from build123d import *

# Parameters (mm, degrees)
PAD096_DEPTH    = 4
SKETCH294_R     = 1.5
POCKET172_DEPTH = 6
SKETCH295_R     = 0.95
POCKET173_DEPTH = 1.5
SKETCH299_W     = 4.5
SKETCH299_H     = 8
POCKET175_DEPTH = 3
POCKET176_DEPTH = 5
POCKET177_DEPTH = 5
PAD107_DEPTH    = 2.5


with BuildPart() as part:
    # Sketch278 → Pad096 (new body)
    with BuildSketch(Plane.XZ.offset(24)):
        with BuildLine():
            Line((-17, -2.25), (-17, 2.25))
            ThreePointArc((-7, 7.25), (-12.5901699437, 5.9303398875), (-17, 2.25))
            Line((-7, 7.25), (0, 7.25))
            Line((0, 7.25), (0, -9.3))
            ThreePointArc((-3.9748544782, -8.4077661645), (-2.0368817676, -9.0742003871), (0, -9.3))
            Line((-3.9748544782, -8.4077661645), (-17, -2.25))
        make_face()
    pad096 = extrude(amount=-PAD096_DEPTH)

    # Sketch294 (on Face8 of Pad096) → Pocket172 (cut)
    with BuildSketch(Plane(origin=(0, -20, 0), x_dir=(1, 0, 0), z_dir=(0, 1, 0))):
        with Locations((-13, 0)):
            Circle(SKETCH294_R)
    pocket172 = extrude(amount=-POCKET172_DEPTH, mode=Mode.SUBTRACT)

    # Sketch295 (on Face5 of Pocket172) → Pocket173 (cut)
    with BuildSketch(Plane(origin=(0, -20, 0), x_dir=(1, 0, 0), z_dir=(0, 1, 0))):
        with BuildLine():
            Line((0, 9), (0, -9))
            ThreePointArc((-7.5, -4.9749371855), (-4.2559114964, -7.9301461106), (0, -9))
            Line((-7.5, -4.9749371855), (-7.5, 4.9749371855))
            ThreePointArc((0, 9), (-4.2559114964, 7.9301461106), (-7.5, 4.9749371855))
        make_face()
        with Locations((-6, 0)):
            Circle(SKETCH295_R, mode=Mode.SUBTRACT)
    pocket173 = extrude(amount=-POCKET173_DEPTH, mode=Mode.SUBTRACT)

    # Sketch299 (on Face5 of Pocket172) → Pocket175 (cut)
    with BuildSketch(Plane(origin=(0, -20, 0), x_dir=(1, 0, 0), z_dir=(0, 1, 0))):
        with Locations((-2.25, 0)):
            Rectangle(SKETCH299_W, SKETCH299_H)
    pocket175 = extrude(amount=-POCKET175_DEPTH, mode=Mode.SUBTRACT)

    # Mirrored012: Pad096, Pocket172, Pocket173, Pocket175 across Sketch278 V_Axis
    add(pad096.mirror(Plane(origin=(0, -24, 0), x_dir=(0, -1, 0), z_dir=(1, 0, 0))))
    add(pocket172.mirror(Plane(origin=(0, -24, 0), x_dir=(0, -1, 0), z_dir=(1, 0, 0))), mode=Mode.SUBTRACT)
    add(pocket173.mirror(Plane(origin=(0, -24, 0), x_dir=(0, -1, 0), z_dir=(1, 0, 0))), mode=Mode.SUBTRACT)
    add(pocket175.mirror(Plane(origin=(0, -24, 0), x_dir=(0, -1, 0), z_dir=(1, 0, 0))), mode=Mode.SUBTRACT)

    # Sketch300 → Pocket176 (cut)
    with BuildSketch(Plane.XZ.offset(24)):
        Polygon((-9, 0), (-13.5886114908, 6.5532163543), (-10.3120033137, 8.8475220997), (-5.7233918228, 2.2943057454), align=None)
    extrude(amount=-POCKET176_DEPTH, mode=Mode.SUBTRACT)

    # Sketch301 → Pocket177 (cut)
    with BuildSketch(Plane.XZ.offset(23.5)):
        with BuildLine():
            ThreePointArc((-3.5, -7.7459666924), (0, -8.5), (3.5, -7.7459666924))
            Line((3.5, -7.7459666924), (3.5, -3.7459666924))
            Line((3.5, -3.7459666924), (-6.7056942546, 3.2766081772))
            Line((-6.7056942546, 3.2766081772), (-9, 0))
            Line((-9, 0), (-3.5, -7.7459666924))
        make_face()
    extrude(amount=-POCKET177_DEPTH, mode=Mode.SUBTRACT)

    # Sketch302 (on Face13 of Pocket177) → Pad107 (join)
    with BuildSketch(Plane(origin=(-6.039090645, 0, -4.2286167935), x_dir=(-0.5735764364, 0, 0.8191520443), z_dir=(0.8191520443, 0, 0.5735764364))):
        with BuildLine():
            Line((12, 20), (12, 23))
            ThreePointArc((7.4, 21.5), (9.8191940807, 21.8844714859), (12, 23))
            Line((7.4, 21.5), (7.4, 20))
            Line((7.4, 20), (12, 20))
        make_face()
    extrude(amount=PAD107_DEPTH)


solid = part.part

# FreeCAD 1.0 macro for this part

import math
import FreeCAD as App
import Part
import Sketcher
from FreeCAD import Vector
Q = App.Units.Quantity

doc = App.newDocument("Part")
body = doc.addObject("PartDesign::Body", "Body")

# Sketch on XZ plane
sketch1 = body.newObject("Sketcher::SketchObject", "Sketch")
sketch1.AttachmentSupport = (doc.getObject("XZ_Plane"), [""])
sketch1.MapMode = "FlatFace"
sketch1.AttachmentOffset = App.Placement(Vector(0, 0, 24), App.Rotation())
sketch1.addGeometry(Part.LineSegment(Vector(-17, 2.2, 0), Vector(-17, -2.2, 0)), False)
sketch1.addGeometry(Part.LineSegment(Vector(-17, -2.2, 0), Vector(-4, -8.4, 0)), False)
sketch1.addGeometry(Part.ArcOfCircle(Part.Circle(Vector(0, 0, 0), Vector(0, 0, 1), 9.3), math.radians(-115), math.radians(-90)), False)
sketch1.addGeometry(Part.LineSegment(Vector(0, -9.3, 0), Vector(0, 7.2, 0)), False)
sketch1.addGeometry(Part.LineSegment(Vector(0, 7.2, 0), Vector(-7, 7.2, 0)), False)
sketch1.addGeometry(Part.ArcOfCircle(Part.Circle(Vector(-7, -5.2, 0), Vector(0, 0, 1), 12.5), math.radians(90), math.radians(143)), False)
sketch1.addConstraint(Sketcher.Constraint("Coincident", 0, 2, 1, 1))
sketch1.addConstraint(Sketcher.Constraint("Tangent", 1, 2, 2, 1))
sketch1.addConstraint(Sketcher.Constraint("Coincident", 2, 2, 3, 1))
sketch1.addConstraint(Sketcher.Constraint("Coincident", 3, 2, 4, 1))
sketch1.addConstraint(Sketcher.Constraint("Tangent", 4, 2, 5, 1))
sketch1.addConstraint(Sketcher.Constraint("Coincident", 5, 2, 0, 1))
sketch1.addConstraint(Sketcher.Constraint("Vertical", 0))
sketch1.addConstraint(Sketcher.Constraint("Vertical", 3))
sketch1.addConstraint(Sketcher.Constraint("Horizontal", 4))
sketch1.addConstraint(Sketcher.Constraint("Coincident", 2, 3, -1, 1))
sketch1.addConstraint(Sketcher.Constraint("PointOnObject", 2, 2, -2))
sketch1.addConstraint(Sketcher.Constraint("Radius", 2, 9.3))
sketch1.addConstraint(Sketcher.Constraint("Radius", 5, 12.5))
sketch1.addConstraint(Sketcher.Constraint("DistanceX", 4, 2, 4, 1, 7.0))
sketch1.addConstraint(Sketcher.Constraint("DistanceY", 0, 2, 0, 1, 4.5))
sketch1.addConstraint(Sketcher.Constraint("DistanceX", 0, 2, -1, 1, 17.0))
sketch1.addConstraint(Sketcher.Constraint("DistanceY", 3, 1, 3, 2, 16.55))
pad1 = body.newObject("PartDesign::Pad", "Pad")
pad1.Profile = sketch1
pad1.Length = 4
pad1.Reversed = True

# Sketch on XZ plane
sketch2 = body.newObject("Sketcher::SketchObject", "Sketch001")
sketch2.AttachmentSupport = (doc.getObject("XZ_Plane"), [""])
sketch2.MapMode = "FlatFace"
sketch2.AttachmentOffset = App.Placement(Vector(0, 0, 20), App.Rotation())
sketch2.addGeometry(Part.Circle(Vector(-13, 0, 0), Vector(0, 0, 1), 1.5), False)
sketch2.addConstraint(Sketcher.Constraint("PointOnObject", 0, 3, -1))
sketch2.addConstraint(Sketcher.Constraint("Diameter", 0, 3.0))
sketch2.addConstraint(Sketcher.Constraint("DistanceX", 0, 3, -1, 1, 13.0))
pocket1 = body.newObject("PartDesign::Pocket", "Pocket")
pocket1.Profile = sketch2
pocket1.Length = 6
pocket1.Reversed = True

# Sketch on XZ plane
sketch3 = body.newObject("Sketcher::SketchObject", "Sketch002")
sketch3.AttachmentSupport = (doc.getObject("XZ_Plane"), [""])
sketch3.MapMode = "FlatFace"
sketch3.AttachmentOffset = App.Placement(Vector(0, 0, 20), App.Rotation())
sketch3.addGeometry(Part.LineSegment(Vector(0, 9, 0), Vector(0, -9, 0)), False)
sketch3.addGeometry(Part.ArcOfCircle(Part.Circle(Vector(0, 0, 0), Vector(0, 0, 1), 9), math.radians(-146), math.radians(-90)), False)
sketch3.addGeometry(Part.LineSegment(Vector(-7.5, -5, 0), Vector(-7.5, 5, 0)), False)
sketch3.addGeometry(Part.ArcOfCircle(Part.Circle(Vector(0, 0, 0), Vector(0, 0, 1), 9), math.radians(90), math.radians(146)), False)
sketch3.addGeometry(Part.Circle(Vector(-6, 0, 0), Vector(0, 0, 1), 0.9), False)
sketch3.addConstraint(Sketcher.Constraint("Coincident", 0, 2, 1, 2))
sketch3.addConstraint(Sketcher.Constraint("Coincident", 1, 1, 2, 1))
sketch3.addConstraint(Sketcher.Constraint("Coincident", 2, 2, 3, 2))
sketch3.addConstraint(Sketcher.Constraint("Coincident", 3, 1, 0, 1))
sketch3.addConstraint(Sketcher.Constraint("Vertical", 0))
sketch3.addConstraint(Sketcher.Constraint("Vertical", 2))
sketch3.addConstraint(Sketcher.Constraint("Coincident", 1, 3, -1, 1))
sketch3.addConstraint(Sketcher.Constraint("Coincident", 3, 3, -1, 1))
sketch3.addConstraint(Sketcher.Constraint("Equal", 1, 3))
sketch3.addConstraint(Sketcher.Constraint("PointOnObject", 4, 3, -1))
sketch3.addConstraint(Sketcher.Constraint("PointOnObject", 0, 2, -2))
sketch3.addConstraint(Sketcher.Constraint("Radius", 1, 9.0))
sketch3.addConstraint(Sketcher.Constraint("Diameter", 4, 1.9))
sketch3.addConstraint(Sketcher.Constraint("DistanceX", 4, 3, -1, 1, 6.0))
sketch3.addConstraint(Sketcher.Constraint("DistanceX", 1, 1, -1, 1, 7.5))
pocket2 = body.newObject("PartDesign::Pocket", "Pocket001")
pocket2.Profile = sketch3
pocket2.Length = 1.5
pocket2.Reversed = True

# Sketch on XZ plane
sketch4 = body.newObject("Sketcher::SketchObject", "Sketch003")
sketch4.AttachmentSupport = (doc.getObject("XZ_Plane"), [""])
sketch4.MapMode = "FlatFace"
sketch4.AttachmentOffset = App.Placement(Vector(0, 0, 20), App.Rotation())
sketch4.addGeometry(Part.LineSegment(Vector(-4.5, -4, 0), Vector(-4.5, 4, 0)), False)
sketch4.addGeometry(Part.LineSegment(Vector(-4.5, 4, 0), Vector(0, 4, 0)), False)
sketch4.addGeometry(Part.LineSegment(Vector(0, 4, 0), Vector(0, -4, 0)), False)
sketch4.addGeometry(Part.LineSegment(Vector(0, -4, 0), Vector(-4.5, -4, 0)), False)
sketch4.addConstraint(Sketcher.Constraint("Coincident", 0, 2, 1, 1))
sketch4.addConstraint(Sketcher.Constraint("Coincident", 1, 2, 2, 1))
sketch4.addConstraint(Sketcher.Constraint("Coincident", 2, 2, 3, 1))
sketch4.addConstraint(Sketcher.Constraint("Coincident", 3, 2, 0, 1))
sketch4.addConstraint(Sketcher.Constraint("Vertical", 0))
sketch4.addConstraint(Sketcher.Constraint("Horizontal", 1))
sketch4.addConstraint(Sketcher.Constraint("Vertical", 2))
sketch4.addConstraint(Sketcher.Constraint("Horizontal", 3))
sketch4.addConstraint(Sketcher.Constraint("Symmetric", 1, 2, 2, 2, -1, 1))
sketch4.addConstraint(Sketcher.Constraint("DistanceY", 0, 1, 0, 2, 8.0))
sketch4.addConstraint(Sketcher.Constraint("DistanceX", 1, 1, 1, 2, 4.5))
pocket3 = body.newObject("PartDesign::Pocket", "Pocket002")
pocket3.Profile = sketch4
pocket3.Length = 3
pocket3.Reversed = True
doc.recompute()

mirrored = body.newObject("PartDesign::Mirrored", "Mirrored")
mirrored.Originals = [pad1, pocket1, pocket2, pocket3]
mirrored.MirrorPlane = (doc.getObject("YZ_Plane"), [""])
body.Tip = mirrored

# Sketch on XZ plane
sketch5 = body.newObject("Sketcher::SketchObject", "Sketch004")
sketch5.AttachmentSupport = (doc.getObject("XZ_Plane"), [""])
sketch5.MapMode = "FlatFace"
sketch5.AttachmentOffset = App.Placement(Vector(0, 0, 24), App.Rotation())
sketch5.addGeometry(Part.LineSegment(Vector(-13.6, 6.6, 0), Vector(-9, 0, 0)), False)
sketch5.addGeometry(Part.LineSegment(Vector(-9, 0, 0), Vector(-5.7, 2.3, 0)), False)
sketch5.addGeometry(Part.LineSegment(Vector(-5.7, 2.3, 0), Vector(-10.3, 8.8, 0)), False)
sketch5.addGeometry(Part.LineSegment(Vector(-10.3, 8.8, 0), Vector(-13.6, 6.6, 0)), False)
sketch5.addConstraint(Sketcher.Constraint("Coincident", 0, 2, 1, 1))
sketch5.addConstraint(Sketcher.Constraint("Coincident", 1, 2, 2, 1))
sketch5.addConstraint(Sketcher.Constraint("Coincident", 2, 2, 3, 1))
sketch5.addConstraint(Sketcher.Constraint("Coincident", 3, 2, 0, 1))
sketch5.addConstraint(Sketcher.Constraint("PointOnObject", 0, 2, -1))
sketch5.addConstraint(Sketcher.Constraint("Perpendicular", 0, 1))
sketch5.addConstraint(Sketcher.Constraint("Perpendicular", 1, 2))
sketch5.addConstraint(Sketcher.Constraint("Perpendicular", 2, 3))
sketch5.addConstraint(Sketcher.Constraint("Angle", 0, Q("-55 deg")))
sketch5.addConstraint(Sketcher.Constraint("Distance", 0, 8.0))
sketch5.addConstraint(Sketcher.Constraint("Distance", 1, 4.0))
sketch5.addConstraint(Sketcher.Constraint("DistanceX", 0, 2, -1, 1, 9.0))
pocket4 = body.newObject("PartDesign::Pocket", "Pocket003")
pocket4.Profile = sketch5
pocket4.Length = 5

# Sketch on XZ plane
sketch6 = body.newObject("Sketcher::SketchObject", "Sketch005")
sketch6.AttachmentSupport = (doc.getObject("XZ_Plane"), [""])
sketch6.MapMode = "FlatFace"
sketch6.AttachmentOffset = App.Placement(Vector(0, 0, 23.5), App.Rotation())
sketch6.addGeometry(Part.ArcOfCircle(Part.Circle(Vector(0, 0, 0), Vector(0, 0, 1), 8.5), math.radians(-114), math.radians(-66)), False)
sketch6.addGeometry(Part.LineSegment(Vector(3.5, -7.7, 0), Vector(3.5, -3.7, 0)), False)
sketch6.addGeometry(Part.LineSegment(Vector(3.5, -3.7, 0), Vector(-6.7, 3.3, 0)), False)
sketch6.addGeometry(Part.LineSegment(Vector(-6.7, 3.3, 0), Vector(-9, 0, 0)), False)
sketch6.addGeometry(Part.LineSegment(Vector(-9, 0, 0), Vector(-3.5, -7.7, 0)), False)
sketch6.addConstraint(Sketcher.Constraint("Coincident", 0, 2, 1, 1))
sketch6.addConstraint(Sketcher.Constraint("Coincident", 1, 2, 2, 1))
sketch6.addConstraint(Sketcher.Constraint("Coincident", 2, 2, 3, 1))
sketch6.addConstraint(Sketcher.Constraint("Coincident", 3, 2, 4, 1))
sketch6.addConstraint(Sketcher.Constraint("Coincident", 4, 2, 0, 1))
sketch6.addConstraint(Sketcher.Constraint("Vertical", 1))
sketch6.addConstraint(Sketcher.Constraint("Coincident", 0, 3, -1, 1))
sketch6.addConstraint(Sketcher.Constraint("PointOnObject", 3, 2, -1))
sketch6.addConstraint(Sketcher.Constraint("Horizontal", 0, 2, 4, 2))
sketch6.addConstraint(Sketcher.Constraint("Radius", 0, 8.5))
sketch6.addConstraint(Sketcher.Constraint("DistanceY", 1, 1, 1, 2, 4.0))
sketch6.addConstraint(Sketcher.Constraint("Angle", 3, Q("-125 deg")))
sketch6.addConstraint(Sketcher.Constraint("Distance", 3, 4.0))
sketch6.addConstraint(Sketcher.Constraint("DistanceX", 3, 2, -1, 1, 9.0))
sketch6.addConstraint(Sketcher.Constraint("DistanceX", 4, 2, 0, 2, 7.0))
pocket5 = body.newObject("PartDesign::Pocket", "Pocket004")
pocket5.Profile = sketch6
pocket5.Length = 5

# Sketch on an angled plane
sketch7 = body.newObject("Sketcher::SketchObject", "Sketch006")
sketch7.Placement = App.Placement(Vector(-6.039091, 0, -4.228617), App.Rotation(Vector(-0.573576436, 0, 0.819152044), Vector(0, -0.999999999, 0), Vector(0.819152044, 0, 0.573576436), "ZXY"))
sketch7.addGeometry(Part.LineSegment(Vector(12, 20, 0), Vector(12, 23, 0)), False)
sketch7.addGeometry(Part.ArcOfCircle(Part.Circle(Vector(7.4, 29.3, 0), Vector(0, 0, 1), 7.8), math.radians(-90), math.radians(-54)), False)
sketch7.addGeometry(Part.LineSegment(Vector(7.4, 21.5, 0), Vector(7.4, 20, 0)), False)
sketch7.addGeometry(Part.LineSegment(Vector(7.4, 20, 0), Vector(12, 20, 0)), False)
sketch7.addConstraint(Sketcher.Constraint("Coincident", 0, 2, 1, 2))
sketch7.addConstraint(Sketcher.Constraint("Coincident", 1, 1, 2, 1))
sketch7.addConstraint(Sketcher.Constraint("Coincident", 2, 2, 3, 1))
sketch7.addConstraint(Sketcher.Constraint("Coincident", 3, 2, 0, 1))
sketch7.addConstraint(Sketcher.Constraint("Vertical", 0))
sketch7.addConstraint(Sketcher.Constraint("Vertical", 2))
sketch7.addConstraint(Sketcher.Constraint("Horizontal", 3))
sketch7.addConstraint(Sketcher.Constraint("DistanceY", 0, 1, 0, 2, 3.0))
sketch7.addConstraint(Sketcher.Constraint("DistanceX", 3, 1, 3, 2, 4.6))
sketch7.addConstraint(Sketcher.Constraint("DistanceY", 2, 2, 2, 1, 1.5))
sketch7.addConstraint(Sketcher.Constraint("DistanceX", -1, 1, 0, 2, 12.0))
sketch7.addConstraint(Sketcher.Constraint("DistanceY", -1, 1, 0, 2, 23.0))
sketch7.addConstraint(Sketcher.Constraint("DistanceX", -1, 1, 1, 3, 7.4))
pad2 = body.newObject("PartDesign::Pad", "Pad001")
pad2.Profile = sketch7
pad2.Length = 2.5

doc.recompute()
